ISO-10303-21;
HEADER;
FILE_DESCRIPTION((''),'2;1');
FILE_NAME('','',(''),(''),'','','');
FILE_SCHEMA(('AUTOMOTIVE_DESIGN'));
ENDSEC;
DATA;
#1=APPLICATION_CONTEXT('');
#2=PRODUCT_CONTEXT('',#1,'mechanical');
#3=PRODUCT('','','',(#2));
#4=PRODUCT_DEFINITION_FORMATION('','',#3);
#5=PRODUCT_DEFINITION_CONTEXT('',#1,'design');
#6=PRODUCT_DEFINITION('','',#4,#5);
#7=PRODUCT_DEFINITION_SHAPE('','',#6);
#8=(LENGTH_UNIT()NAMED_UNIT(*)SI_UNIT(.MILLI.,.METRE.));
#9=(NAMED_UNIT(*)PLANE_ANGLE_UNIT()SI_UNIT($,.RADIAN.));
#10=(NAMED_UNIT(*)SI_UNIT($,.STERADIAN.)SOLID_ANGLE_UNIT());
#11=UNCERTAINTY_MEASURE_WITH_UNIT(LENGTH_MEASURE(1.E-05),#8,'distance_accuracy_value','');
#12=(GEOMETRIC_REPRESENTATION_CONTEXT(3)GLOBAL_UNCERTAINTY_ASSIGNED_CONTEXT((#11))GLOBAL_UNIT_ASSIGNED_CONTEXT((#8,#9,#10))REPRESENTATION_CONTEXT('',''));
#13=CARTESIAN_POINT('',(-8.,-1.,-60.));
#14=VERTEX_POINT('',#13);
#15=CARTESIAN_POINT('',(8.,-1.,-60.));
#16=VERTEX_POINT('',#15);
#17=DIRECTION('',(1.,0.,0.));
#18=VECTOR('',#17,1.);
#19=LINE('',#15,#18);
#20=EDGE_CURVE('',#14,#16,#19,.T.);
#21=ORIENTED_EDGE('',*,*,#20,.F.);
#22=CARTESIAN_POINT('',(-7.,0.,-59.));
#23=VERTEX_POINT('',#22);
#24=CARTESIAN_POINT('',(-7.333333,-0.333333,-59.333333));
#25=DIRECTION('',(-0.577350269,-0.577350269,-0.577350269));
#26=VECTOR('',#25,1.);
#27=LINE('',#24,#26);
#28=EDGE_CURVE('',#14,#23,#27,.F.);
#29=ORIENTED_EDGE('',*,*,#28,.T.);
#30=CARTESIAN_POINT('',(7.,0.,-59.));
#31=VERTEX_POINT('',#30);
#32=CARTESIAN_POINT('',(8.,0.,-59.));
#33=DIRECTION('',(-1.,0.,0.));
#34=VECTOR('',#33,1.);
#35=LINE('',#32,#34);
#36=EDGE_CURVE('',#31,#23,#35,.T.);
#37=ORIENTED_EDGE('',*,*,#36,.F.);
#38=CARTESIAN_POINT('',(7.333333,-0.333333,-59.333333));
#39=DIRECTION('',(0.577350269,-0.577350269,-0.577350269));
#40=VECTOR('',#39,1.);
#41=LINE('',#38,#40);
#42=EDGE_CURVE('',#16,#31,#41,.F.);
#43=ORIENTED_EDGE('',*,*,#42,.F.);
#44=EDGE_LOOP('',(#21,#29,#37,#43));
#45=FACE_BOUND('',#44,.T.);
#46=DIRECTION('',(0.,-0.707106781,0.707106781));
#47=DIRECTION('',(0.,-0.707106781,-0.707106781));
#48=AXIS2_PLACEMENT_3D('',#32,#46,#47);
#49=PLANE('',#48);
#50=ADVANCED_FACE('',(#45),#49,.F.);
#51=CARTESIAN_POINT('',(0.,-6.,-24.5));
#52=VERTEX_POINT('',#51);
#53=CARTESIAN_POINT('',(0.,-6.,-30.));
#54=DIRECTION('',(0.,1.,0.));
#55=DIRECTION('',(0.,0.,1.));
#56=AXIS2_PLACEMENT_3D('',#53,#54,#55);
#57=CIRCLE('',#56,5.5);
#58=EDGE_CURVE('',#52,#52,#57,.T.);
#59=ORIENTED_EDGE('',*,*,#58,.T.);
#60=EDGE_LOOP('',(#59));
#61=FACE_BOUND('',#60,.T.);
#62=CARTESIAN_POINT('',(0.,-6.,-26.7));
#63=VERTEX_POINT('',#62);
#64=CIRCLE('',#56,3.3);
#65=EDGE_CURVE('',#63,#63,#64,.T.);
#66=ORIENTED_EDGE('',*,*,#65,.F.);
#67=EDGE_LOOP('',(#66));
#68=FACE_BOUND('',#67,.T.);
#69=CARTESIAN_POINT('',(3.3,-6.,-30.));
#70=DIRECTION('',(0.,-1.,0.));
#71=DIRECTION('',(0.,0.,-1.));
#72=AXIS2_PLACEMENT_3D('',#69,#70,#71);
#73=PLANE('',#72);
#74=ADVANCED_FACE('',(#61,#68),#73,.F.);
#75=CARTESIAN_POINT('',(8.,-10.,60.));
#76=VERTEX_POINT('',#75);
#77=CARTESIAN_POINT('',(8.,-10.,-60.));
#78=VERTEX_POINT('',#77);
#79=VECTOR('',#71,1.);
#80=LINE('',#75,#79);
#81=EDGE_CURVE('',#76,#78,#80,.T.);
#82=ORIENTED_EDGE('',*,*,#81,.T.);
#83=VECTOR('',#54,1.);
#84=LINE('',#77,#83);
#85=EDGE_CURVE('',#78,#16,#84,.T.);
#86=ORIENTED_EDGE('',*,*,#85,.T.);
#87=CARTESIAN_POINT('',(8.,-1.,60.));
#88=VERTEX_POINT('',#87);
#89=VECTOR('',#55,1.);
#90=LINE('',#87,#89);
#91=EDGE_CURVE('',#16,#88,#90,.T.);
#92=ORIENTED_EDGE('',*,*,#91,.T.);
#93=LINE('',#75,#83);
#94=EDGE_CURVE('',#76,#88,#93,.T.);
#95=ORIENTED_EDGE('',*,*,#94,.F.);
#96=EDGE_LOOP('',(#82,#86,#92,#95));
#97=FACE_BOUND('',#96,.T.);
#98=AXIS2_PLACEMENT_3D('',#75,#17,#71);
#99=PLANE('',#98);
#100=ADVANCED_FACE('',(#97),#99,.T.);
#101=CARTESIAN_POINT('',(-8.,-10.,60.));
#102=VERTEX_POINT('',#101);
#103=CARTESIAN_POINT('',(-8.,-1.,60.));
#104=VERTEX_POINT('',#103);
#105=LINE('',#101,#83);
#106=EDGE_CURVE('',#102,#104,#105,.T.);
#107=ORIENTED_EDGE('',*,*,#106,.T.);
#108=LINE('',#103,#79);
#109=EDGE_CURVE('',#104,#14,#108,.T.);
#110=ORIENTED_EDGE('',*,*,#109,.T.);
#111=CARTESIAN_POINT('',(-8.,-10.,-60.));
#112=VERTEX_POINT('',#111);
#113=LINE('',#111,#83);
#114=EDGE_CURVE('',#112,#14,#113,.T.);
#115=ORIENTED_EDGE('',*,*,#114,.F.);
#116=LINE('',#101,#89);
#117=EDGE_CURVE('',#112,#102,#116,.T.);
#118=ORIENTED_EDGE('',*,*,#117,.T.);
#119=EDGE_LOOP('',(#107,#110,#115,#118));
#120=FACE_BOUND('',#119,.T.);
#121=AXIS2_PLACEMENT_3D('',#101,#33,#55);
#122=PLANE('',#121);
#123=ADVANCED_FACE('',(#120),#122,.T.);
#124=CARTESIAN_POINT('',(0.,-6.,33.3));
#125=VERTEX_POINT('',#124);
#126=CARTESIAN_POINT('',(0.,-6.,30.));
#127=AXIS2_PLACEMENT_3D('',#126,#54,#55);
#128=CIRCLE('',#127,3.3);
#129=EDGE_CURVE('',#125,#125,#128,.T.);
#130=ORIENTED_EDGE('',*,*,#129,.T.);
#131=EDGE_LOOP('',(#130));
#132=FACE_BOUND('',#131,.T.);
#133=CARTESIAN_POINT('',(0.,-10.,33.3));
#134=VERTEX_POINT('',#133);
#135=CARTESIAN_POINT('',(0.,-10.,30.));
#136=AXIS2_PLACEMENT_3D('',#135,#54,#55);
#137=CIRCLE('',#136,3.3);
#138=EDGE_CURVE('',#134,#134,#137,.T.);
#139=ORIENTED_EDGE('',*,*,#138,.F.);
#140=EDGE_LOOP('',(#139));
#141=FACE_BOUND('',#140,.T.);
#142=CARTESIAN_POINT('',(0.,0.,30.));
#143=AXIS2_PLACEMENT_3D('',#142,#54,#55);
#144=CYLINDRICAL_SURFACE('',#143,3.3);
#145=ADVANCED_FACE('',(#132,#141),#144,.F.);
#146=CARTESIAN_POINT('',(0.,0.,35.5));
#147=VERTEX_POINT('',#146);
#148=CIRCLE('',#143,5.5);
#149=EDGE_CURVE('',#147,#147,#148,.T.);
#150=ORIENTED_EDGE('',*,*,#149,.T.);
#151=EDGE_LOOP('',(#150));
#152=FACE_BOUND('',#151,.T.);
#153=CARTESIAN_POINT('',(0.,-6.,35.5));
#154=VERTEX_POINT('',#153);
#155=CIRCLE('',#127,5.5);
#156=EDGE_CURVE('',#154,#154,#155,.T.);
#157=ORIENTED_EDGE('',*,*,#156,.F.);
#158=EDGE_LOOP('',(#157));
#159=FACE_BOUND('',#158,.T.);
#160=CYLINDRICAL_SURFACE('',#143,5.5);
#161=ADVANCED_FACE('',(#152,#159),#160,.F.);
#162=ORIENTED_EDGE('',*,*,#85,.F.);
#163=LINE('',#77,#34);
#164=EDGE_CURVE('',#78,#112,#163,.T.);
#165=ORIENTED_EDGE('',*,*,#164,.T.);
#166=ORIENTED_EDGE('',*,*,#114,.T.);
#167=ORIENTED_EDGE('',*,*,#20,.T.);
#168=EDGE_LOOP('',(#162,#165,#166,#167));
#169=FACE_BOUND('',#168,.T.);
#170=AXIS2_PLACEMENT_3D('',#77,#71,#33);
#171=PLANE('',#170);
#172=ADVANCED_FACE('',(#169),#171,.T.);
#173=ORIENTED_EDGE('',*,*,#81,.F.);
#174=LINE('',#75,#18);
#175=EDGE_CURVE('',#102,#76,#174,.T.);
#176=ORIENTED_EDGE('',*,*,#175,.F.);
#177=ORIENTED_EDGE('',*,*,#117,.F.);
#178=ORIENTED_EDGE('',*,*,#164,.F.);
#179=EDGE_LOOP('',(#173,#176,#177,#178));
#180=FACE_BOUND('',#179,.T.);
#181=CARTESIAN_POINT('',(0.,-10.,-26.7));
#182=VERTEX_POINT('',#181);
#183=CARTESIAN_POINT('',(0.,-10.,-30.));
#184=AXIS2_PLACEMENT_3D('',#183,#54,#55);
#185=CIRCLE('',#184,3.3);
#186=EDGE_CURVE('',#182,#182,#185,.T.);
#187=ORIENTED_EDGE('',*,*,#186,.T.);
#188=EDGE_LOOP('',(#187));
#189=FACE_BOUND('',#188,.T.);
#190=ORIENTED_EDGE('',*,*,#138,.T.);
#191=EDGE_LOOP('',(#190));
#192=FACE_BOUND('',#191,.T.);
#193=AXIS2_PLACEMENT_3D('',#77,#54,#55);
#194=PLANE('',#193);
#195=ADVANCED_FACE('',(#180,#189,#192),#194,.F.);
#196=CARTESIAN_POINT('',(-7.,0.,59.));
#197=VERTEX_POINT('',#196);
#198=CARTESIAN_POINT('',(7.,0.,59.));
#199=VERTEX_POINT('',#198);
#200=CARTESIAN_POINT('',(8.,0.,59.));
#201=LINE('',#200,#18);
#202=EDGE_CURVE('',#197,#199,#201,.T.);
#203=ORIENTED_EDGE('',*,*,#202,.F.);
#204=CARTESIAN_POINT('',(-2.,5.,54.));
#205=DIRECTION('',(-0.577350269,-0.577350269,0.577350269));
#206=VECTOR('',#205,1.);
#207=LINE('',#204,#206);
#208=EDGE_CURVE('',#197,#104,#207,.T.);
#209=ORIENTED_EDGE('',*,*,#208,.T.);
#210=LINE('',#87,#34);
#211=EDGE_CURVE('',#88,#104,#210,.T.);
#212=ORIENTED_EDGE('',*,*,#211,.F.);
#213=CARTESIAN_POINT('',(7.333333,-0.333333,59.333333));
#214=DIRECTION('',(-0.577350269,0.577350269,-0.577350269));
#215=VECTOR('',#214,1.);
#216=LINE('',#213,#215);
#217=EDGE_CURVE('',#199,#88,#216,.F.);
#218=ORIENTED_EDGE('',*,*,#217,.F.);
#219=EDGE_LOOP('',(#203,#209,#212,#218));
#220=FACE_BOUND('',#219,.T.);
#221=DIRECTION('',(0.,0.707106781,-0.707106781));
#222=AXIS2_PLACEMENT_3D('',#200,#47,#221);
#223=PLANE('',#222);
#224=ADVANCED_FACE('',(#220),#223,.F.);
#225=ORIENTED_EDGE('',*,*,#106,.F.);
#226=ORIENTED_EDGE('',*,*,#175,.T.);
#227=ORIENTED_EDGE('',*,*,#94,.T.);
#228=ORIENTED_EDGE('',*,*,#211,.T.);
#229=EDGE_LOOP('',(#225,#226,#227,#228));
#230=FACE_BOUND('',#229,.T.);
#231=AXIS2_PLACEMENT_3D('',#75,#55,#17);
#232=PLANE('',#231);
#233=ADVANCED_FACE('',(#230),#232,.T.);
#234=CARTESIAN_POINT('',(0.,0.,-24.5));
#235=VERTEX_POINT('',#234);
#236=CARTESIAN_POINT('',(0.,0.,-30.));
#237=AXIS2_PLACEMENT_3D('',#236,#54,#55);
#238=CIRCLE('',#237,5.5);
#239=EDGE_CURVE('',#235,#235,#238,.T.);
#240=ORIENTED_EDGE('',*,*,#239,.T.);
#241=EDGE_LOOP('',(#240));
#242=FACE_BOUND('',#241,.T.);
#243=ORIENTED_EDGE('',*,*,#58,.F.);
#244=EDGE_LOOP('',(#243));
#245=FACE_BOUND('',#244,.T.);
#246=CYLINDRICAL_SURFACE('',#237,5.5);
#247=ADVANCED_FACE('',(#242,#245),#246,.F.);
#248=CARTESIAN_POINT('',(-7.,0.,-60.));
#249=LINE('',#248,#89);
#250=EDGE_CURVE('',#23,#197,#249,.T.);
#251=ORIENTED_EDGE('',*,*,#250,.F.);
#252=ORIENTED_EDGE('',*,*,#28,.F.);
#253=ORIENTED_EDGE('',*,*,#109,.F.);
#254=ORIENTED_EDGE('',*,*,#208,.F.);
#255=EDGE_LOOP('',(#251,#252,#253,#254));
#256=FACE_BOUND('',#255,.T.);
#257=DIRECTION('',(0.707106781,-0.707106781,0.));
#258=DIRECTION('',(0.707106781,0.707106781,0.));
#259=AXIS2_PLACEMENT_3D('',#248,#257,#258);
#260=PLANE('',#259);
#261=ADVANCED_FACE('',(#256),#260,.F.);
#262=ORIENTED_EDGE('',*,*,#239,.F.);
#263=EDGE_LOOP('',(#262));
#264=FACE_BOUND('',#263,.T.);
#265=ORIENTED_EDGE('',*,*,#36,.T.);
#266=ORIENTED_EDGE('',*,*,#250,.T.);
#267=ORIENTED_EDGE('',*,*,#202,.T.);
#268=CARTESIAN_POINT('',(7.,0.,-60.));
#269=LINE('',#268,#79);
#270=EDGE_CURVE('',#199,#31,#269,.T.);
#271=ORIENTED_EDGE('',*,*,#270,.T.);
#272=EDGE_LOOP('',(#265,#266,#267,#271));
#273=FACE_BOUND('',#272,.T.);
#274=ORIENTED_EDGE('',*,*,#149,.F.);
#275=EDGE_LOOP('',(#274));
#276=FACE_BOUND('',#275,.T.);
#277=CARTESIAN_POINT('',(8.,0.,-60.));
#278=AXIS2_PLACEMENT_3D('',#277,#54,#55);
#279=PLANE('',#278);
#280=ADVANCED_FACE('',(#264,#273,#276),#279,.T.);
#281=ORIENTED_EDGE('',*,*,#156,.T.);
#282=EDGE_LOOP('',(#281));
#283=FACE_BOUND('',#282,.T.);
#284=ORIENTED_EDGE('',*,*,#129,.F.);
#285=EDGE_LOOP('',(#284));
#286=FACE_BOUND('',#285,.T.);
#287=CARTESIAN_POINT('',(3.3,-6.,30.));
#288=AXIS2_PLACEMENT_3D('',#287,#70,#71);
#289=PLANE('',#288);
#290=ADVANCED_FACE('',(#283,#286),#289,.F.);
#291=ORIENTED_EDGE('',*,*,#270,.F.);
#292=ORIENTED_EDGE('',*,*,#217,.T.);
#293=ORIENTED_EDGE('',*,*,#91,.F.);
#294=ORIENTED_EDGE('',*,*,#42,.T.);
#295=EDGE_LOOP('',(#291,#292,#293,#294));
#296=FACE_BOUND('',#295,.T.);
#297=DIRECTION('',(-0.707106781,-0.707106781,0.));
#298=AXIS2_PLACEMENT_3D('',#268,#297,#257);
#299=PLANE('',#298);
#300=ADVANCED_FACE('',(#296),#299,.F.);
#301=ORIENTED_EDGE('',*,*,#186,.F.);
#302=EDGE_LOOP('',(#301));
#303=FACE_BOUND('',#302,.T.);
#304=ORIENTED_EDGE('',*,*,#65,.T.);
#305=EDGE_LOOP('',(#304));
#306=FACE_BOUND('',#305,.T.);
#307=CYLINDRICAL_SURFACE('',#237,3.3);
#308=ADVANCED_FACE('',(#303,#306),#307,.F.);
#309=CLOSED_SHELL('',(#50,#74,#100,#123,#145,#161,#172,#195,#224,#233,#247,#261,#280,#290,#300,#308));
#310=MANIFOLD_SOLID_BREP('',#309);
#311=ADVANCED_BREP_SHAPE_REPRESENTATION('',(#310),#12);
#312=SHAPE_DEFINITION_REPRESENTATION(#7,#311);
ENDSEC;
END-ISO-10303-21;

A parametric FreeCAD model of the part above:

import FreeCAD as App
import Part
import Sketcher
Q = App.Units.Quantity


def edges_at(feature, points):
    """Names of the edges that pass closest to the given points."""
    edges = feature.Shape.Edges
    near = lambda p: min(range(len(edges)), key=lambda i: edges[i].distToShape(Part.Vertex(*p))[0])
    return sorted({f"Edge{near(p) + 1}" for p in points})


def add_polygon(sketch, points):
    """Adds a closed chain of lines whose ends are joined by coincident constraints."""
    first, n = sketch.GeometryCount, len(points)
    for a, b in zip(points, points[1:] + points[:1]):
        sketch.addGeometry(Part.LineSegment(App.Vector(*a, 0), App.Vector(*b, 0)), False)
    for i in range(n):
        sketch.addConstraint(Sketcher.Constraint("Coincident", first + i, 2, first + (i + 1) % n, 1))

doc = App.newDocument("Part")
body = doc.addObject("PartDesign::Body", "Body")

# Sketch on XZ plane
sketch1 = doc.addObject("Sketcher::SketchObject", "Sketch")
body.addObject(sketch1)
sketch1.AttachmentSupport = (doc.XZ_Plane, [""])
sketch1.MapMode = "FlatFace"
add_polygon(sketch1, [(-8, -60), (-8, 60), (8, 60), (8, -60)])  # lines 0-3
sketch1.addConstraint(Sketcher.Constraint("Vertical", 0))
sketch1.addConstraint(Sketcher.Constraint("Horizontal", 1))
sketch1.addConstraint(Sketcher.Constraint("Vertical", 2))
sketch1.addConstraint(Sketcher.Constraint("Horizontal", 3))
sketch1.addConstraint(Sketcher.Constraint("Symmetric", 0, 2, 2, 2, -1, 1))
sketch1.addConstraint(Sketcher.Constraint("DistanceX", 1, 1, 1, 2, Q("16 mm")))
sketch1.addConstraint(Sketcher.Constraint("DistanceY", 0, 1, 0, 2, Q("120 mm")))
pad1 = doc.addObject("PartDesign::Pad", "Pad")
body.addObject(pad1)
pad1.Profile = sketch1
pad1.Length = 10
doc.recompute()

chamfer = doc.addObject("PartDesign::Chamfer", "Chamfer")
body.addObject(chamfer)
chamfer.Base = (pad1, edges_at(pad1, [
    (0, 0, 60),
    (-8, 0, 0),
    (0, 0, -60),
    (8, 0, 0),
]))
chamfer.Size = 1

# Sketch on XZ plane
sketch2 = doc.addObject("Sketcher::SketchObject", "Sketch001")
body.addObject(sketch2)
sketch2.AttachmentSupport = (doc.XZ_Plane, [""])
sketch2.MapMode = "FlatFace"
sketch2.addGeometry(Part.Circle(App.Vector(0, 30, 0), App.Vector(0, 0, 1), 3.3), False)
sketch2.addGeometry(Part.Circle(App.Vector(0, -30, 0), App.Vector(0, 0, 1), 3.3), False)
sketch2.addConstraint(Sketcher.Constraint("Equal", 0, 1))
sketch2.addConstraint(Sketcher.Constraint("Symmetric", 0, 3, 1, 3, -1, 1))
sketch2.addConstraint(Sketcher.Constraint("PointOnObject", 0, 3, -2))
sketch2.addConstraint(Sketcher.Constraint("Diameter", 0, Q("6.6 mm")))
sketch2.addConstraint(Sketcher.Constraint("DistanceY", -1, 1, 0, 3, Q("30 mm")))
doc.recompute()
hole = doc.addObject("PartDesign::Hole", "Hole")
body.addObject(hole)
hole.Profile = sketch2
hole.ThreadType = "None"
hole.Diameter = 6.6
hole.DepthType = "ThroughAll"
hole.HoleCutType = "Counterbore"
hole.HoleCutDiameter = 11
hole.HoleCutDepth = 6
hole.Reversed = True

doc.recompute()
